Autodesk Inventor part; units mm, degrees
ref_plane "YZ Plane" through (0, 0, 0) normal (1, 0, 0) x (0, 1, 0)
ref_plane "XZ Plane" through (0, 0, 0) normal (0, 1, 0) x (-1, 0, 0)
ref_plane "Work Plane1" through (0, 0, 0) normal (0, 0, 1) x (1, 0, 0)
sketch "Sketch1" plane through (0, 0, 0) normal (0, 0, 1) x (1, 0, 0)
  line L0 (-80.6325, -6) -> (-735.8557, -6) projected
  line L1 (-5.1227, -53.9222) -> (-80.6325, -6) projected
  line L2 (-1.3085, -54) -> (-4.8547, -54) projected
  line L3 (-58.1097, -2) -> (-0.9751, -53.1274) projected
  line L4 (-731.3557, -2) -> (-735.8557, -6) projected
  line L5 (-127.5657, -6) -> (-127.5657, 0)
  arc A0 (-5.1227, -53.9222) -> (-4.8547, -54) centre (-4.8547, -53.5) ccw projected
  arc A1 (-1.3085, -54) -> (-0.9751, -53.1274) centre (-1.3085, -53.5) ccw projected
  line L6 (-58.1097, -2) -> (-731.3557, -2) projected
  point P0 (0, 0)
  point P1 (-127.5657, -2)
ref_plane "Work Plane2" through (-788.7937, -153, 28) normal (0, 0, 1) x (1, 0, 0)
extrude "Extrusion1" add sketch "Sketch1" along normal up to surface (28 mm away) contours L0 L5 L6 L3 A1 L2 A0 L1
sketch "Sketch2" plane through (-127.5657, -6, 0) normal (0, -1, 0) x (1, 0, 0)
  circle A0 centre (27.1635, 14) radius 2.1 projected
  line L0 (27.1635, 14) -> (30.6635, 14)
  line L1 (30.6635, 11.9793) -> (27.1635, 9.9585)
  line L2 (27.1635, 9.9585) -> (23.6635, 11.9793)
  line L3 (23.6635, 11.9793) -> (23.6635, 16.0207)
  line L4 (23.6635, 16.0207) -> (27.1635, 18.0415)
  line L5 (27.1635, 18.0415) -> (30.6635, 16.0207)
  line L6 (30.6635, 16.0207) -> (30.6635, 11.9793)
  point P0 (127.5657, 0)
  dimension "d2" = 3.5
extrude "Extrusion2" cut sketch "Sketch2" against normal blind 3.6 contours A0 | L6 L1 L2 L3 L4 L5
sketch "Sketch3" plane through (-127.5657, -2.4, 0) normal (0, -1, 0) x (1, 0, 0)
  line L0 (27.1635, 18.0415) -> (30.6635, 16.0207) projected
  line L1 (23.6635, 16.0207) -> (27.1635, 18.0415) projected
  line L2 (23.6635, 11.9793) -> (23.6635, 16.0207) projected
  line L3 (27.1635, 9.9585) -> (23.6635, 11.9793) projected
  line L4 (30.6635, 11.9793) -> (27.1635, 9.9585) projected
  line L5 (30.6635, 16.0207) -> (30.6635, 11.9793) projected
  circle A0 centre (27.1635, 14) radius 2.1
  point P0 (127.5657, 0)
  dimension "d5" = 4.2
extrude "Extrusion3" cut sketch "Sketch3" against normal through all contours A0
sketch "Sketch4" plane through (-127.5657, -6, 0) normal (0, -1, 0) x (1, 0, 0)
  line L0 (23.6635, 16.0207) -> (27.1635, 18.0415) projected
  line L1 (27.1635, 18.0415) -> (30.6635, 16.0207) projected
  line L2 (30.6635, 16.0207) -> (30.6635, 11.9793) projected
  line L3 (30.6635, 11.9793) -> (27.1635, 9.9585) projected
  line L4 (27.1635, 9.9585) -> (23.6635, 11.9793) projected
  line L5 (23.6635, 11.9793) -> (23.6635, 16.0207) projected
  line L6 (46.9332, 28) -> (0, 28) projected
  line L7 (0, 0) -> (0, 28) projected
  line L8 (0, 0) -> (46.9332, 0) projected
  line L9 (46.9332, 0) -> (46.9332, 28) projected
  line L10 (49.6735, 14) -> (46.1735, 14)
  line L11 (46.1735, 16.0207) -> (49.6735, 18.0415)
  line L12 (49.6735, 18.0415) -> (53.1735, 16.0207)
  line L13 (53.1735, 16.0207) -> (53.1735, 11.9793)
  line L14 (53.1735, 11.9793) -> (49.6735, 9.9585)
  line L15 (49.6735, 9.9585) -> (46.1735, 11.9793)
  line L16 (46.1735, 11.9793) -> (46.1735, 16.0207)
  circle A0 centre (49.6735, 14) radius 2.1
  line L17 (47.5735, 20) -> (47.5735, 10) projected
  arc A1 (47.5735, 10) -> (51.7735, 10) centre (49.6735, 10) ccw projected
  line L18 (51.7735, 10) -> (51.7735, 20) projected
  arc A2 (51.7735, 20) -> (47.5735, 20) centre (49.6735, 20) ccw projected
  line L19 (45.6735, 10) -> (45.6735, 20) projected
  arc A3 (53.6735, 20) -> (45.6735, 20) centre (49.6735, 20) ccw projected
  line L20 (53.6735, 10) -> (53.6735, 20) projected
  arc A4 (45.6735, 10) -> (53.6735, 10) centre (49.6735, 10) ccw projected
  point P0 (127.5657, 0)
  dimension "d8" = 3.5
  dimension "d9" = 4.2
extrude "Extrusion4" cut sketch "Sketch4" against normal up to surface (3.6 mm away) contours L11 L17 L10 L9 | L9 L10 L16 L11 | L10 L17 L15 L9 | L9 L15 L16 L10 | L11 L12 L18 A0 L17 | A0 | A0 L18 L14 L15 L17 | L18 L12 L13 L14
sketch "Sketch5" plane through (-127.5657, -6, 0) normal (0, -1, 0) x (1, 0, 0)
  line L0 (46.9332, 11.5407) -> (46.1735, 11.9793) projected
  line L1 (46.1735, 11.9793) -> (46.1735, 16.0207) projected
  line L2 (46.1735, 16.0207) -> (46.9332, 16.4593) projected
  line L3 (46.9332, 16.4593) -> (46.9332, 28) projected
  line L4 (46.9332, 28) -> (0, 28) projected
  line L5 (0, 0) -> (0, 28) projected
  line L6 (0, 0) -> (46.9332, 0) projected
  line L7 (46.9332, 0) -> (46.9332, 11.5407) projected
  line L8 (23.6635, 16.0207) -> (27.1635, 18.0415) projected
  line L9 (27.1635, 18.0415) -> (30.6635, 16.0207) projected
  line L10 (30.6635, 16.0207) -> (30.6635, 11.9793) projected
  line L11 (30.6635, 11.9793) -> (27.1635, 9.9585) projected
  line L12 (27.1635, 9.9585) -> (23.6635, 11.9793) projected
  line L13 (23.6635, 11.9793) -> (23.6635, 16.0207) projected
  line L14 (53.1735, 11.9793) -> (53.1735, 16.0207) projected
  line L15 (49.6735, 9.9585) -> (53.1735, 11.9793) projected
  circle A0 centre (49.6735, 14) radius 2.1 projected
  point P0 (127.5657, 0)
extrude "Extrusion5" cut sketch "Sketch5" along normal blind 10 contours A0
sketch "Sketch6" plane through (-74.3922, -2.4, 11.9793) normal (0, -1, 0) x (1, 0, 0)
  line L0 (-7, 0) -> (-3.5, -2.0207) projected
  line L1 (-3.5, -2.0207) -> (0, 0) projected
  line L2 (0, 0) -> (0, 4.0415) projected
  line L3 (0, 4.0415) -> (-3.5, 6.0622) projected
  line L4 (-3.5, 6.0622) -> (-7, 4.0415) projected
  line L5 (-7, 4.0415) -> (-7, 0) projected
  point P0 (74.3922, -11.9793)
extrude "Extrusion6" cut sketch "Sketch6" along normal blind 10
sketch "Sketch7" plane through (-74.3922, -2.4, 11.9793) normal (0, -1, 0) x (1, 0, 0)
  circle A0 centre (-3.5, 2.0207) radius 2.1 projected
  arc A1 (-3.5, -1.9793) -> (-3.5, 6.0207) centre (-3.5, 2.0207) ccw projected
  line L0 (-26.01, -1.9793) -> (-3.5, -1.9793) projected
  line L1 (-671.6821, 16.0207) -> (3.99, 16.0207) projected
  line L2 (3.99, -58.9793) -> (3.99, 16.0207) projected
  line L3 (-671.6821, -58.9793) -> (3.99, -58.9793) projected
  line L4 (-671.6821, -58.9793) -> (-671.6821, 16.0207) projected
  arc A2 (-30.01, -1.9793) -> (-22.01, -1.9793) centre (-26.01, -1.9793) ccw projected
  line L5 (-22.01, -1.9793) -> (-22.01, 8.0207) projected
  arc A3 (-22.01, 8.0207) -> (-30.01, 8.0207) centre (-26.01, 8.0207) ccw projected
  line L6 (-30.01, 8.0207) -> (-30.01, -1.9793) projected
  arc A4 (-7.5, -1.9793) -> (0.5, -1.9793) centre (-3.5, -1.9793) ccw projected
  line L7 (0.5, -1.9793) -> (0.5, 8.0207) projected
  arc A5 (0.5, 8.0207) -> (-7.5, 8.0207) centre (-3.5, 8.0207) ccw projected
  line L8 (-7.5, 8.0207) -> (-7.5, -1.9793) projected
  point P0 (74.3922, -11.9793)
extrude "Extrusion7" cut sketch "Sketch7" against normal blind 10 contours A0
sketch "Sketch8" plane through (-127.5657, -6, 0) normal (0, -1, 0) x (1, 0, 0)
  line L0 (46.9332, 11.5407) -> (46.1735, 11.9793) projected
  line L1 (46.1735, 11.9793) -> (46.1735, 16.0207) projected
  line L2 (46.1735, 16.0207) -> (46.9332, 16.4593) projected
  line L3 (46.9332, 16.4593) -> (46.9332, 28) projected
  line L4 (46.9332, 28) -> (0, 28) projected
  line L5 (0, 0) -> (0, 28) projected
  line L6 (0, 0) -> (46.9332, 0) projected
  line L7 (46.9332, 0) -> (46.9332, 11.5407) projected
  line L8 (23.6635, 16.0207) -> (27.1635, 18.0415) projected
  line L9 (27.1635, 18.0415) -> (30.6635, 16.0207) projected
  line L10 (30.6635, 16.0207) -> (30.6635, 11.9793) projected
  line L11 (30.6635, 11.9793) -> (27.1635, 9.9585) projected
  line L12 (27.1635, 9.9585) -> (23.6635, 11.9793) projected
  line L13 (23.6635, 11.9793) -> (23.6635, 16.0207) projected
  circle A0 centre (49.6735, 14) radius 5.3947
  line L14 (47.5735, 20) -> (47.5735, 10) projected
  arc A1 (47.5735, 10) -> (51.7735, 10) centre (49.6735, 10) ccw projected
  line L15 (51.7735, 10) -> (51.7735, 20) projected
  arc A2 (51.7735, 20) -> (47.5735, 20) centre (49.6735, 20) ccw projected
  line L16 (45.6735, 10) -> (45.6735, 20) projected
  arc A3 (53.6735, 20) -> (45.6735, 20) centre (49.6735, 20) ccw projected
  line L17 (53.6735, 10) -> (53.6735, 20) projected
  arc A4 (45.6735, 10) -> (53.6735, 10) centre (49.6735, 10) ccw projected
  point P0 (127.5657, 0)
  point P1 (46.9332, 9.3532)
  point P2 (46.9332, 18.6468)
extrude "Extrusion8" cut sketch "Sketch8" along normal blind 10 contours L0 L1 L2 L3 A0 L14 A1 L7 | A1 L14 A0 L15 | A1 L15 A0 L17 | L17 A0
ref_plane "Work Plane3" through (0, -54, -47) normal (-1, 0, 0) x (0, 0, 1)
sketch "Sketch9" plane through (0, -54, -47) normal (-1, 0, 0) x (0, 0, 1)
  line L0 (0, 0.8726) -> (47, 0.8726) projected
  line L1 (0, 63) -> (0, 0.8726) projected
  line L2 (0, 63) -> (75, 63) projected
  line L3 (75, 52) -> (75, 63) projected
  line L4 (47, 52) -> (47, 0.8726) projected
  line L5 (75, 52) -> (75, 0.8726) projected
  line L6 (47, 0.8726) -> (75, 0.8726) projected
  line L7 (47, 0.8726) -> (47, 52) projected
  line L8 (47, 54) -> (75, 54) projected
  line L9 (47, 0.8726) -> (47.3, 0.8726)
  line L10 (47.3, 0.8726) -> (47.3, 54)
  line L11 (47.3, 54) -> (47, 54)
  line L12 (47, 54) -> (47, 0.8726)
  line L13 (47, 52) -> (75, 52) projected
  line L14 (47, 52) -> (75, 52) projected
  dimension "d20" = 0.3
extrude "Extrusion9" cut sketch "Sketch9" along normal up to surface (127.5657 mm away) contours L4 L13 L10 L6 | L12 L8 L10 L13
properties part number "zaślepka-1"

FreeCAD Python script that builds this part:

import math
import FreeCAD as App
import Part
import Sketcher
from FreeCAD import Vector
Q = App.Units.Quantity


def add_polygon(sketch, points):
    """Adds a closed chain of lines whose ends are joined by coincident constraints."""
    first, n = sketch.GeometryCount, len(points)
    for a, b in zip(points, points[1:] + points[:1]):
        sketch.addGeometry(Part.LineSegment(App.Vector(*a, 0), App.Vector(*b, 0)), False)
    for i in range(n):
        sketch.addConstraint(Sketcher.Constraint("Coincident", first + i, 2, first + (i + 1) % n, 1))

doc = App.newDocument("Part")
body = doc.addObject("PartDesign::Body", "Body")

# Sketch on XY plane
sketch1 = doc.addObject("Sketcher::SketchObject", "Sketch")
body.addObject(sketch1)
sketch1.AttachmentSupport = (doc.XY_Plane, [""])
sketch1.MapMode = "FlatFace"
sketch1.addGeometry(Part.LineSegment(Vector(-127.57, -6, 0), Vector(-80.63, -6, 0)), False)
sketch1.addGeometry(Part.LineSegment(Vector(-80.63, -6, 0), Vector(-5.12, -53.92, 0)), False)
sketch1.addGeometry(Part.ArcOfCircle(Part.Circle(Vector(-4.85, -53.5, 0), Vector(0, 0, 1), 0.5), math.radians(-122), math.radians(-90)), False)
sketch1.addGeometry(Part.LineSegment(Vector(-4.85, -54, 0), Vector(-1.31, -54, 0)), False)
sketch1.addGeometry(Part.ArcOfCircle(Part.Circle(Vector(-1.31, -53.5, 0), Vector(0, 0, 1), 0.5), math.radians(-90), math.radians(48)), False)
sketch1.addGeometry(Part.LineSegment(Vector(-0.98, -53.13, 0), Vector(-58.11, -2, 0)), False)
sketch1.addGeometry(Part.LineSegment(Vector(-58.11, -2, 0), Vector(-127.57, -2, 0)), False)
sketch1.addGeometry(Part.LineSegment(Vector(-127.57, -2, 0), Vector(-127.57, -6, 0)), False)
sketch1.addConstraint(Sketcher.Constraint("Coincident", 0, 2, 1, 1))
sketch1.addConstraint(Sketcher.Constraint("Tangent", 1, 2, 2, 1))
sketch1.addConstraint(Sketcher.Constraint("Tangent", 2, 2, 3, 1))
sketch1.addConstraint(Sketcher.Constraint("Tangent", 3, 2, 4, 1))
sketch1.addConstraint(Sketcher.Constraint("Tangent", 4, 2, 5, 1))
sketch1.addConstraint(Sketcher.Constraint("Coincident", 5, 2, 6, 1))
sketch1.addConstraint(Sketcher.Constraint("Coincident", 6, 2, 7, 1))
sketch1.addConstraint(Sketcher.Constraint("Coincident", 7, 2, 0, 1))
sketch1.addConstraint(Sketcher.Constraint("Horizontal", 0))
sketch1.addConstraint(Sketcher.Constraint("Horizontal", 3))
sketch1.addConstraint(Sketcher.Constraint("Horizontal", 6))
sketch1.addConstraint(Sketcher.Constraint("Vertical", 7))
sketch1.addConstraint(Sketcher.Constraint("Equal", 2, 4))
sketch1.addConstraint(Sketcher.Constraint("Radius", 2, Q("0.5 mm")))
sketch1.addConstraint(Sketcher.Constraint("DistanceY", 7, 2, 7, 1, Q("4 mm")))
sketch1.addConstraint(Sketcher.Constraint("DistanceY", 0, 2, -1, 1, Q("6 mm")))
sketch1.addConstraint(Sketcher.Constraint("DistanceY", 2, 2, -1, 1, Q("54 mm")))
sketch1.addConstraint(Sketcher.Constraint("DistanceX", 6, 2, 6, 1, Q("69.456 mm")))
sketch1.addConstraint(Sketcher.Constraint("Distance", 1, Q("89.433 mm")))
sketch1.addConstraint(Sketcher.Constraint("DistanceX", 0, 1, 0, 2, Q("46.9332 mm")))
sketch1.addConstraint(Sketcher.Constraint("DistanceX", 3, 1, 3, 2, Q("3.5462 mm")))
sketch1.addConstraint(Sketcher.Constraint("DistanceX", 4, 2, -1, 1, Q("0.975 mm")))
pad1 = doc.addObject("PartDesign::Pad", "Pad")
body.addObject(pad1)
pad1.Profile = sketch1
pad1.Length = 28

# Sketch on XZ plane
sketch2 = doc.addObject("Sketcher::SketchObject", "Sketch001")
body.addObject(sketch2)
sketch2.AttachmentSupport = (doc.XZ_Plane, [""])
sketch2.MapMode = "FlatFace"
sketch2.AttachmentOffset = App.Placement(Vector(0, 0, 6), App.Rotation())
add_polygon(sketch2, [(-96.9, 12), (-96.9, 14), (-96.9, 16), (-100.4, 18), (-103.9, 16), (-103.9, 12), (-100.4, 10)])  # lines 0-6
sketch2.addConstraint(Sketcher.Constraint("Vertical", 0))
sketch2.addConstraint(Sketcher.Constraint("Vertical", 1))
sketch2.addConstraint(Sketcher.Constraint("Vertical", 4))
sketch2.addConstraint(Sketcher.Constraint("Parallel", 2, 5))
sketch2.addConstraint(Sketcher.Constraint("Parallel", 3, 6))
sketch2.addConstraint(Sketcher.Constraint("Horizontal", 1, 2, 3, 2))
sketch2.addConstraint(Sketcher.Constraint("Horizontal", 4, 2, 6, 2))
sketch2.addConstraint(Sketcher.Constraint("Vertical", 2, 2, 5, 2))
sketch2.addConstraint(Sketcher.Constraint("Equal", 0, 1))
sketch2.addConstraint(Sketcher.Constraint("DistanceX", 2, 2, 1, 2, Q("3.5 mm")))
sketch2.addConstraint(Sketcher.Constraint("Angle", 2, Q("149.999 deg")))
sketch2.addConstraint(Sketcher.Constraint("DistanceY", -1, 1, 0, 2, Q("14 mm")))
sketch2.addConstraint(Sketcher.Constraint("DistanceY", 0, 1, 0, 2, Q("2.0207 mm")))
sketch2.addConstraint(Sketcher.Constraint("DistanceX", 0, 2, -1, 1, Q("96.9022 mm")))
pocket1 = doc.addObject("PartDesign::Pocket", "Pocket")
body.addObject(pocket1)
pocket1.Profile = sketch2
pocket1.Length = 3.6

# Sketch on XZ plane
sketch3 = doc.addObject("Sketcher::SketchObject", "Sketch002")
body.addObject(sketch3)
sketch3.AttachmentSupport = (doc.XZ_Plane, [""])
sketch3.MapMode = "FlatFace"
sketch3.AttachmentOffset = App.Placement(Vector(0, 0, 2.4), App.Rotation())
sketch3.addGeometry(Part.Circle(Vector(-100.4, 14, 0), Vector(0, 0, 1), 2.1), False)
sketch3.addConstraint(Sketcher.Constraint("Diameter", 0, Q("4.2 mm")))
sketch3.addConstraint(Sketcher.Constraint("DistanceY", -1, 1, 0, 3, Q("14 mm")))
sketch3.addConstraint(Sketcher.Constraint("DistanceX", 0, 3, -1, 1, Q("100.4022 mm")))
pocket2 = doc.addObject("PartDesign::Pocket", "Pocket001")
body.addObject(pocket2)
pocket2.Profile = sketch3
pocket2.Type = "ThroughAll"

# Sketch on XZ plane
sketch4 = doc.addObject("Sketcher::SketchObject", "Sketch003")
body.addObject(sketch4)
sketch4.AttachmentSupport = (doc.XZ_Plane, [""])
sketch4.MapMode = "FlatFace"
sketch4.AttachmentOffset = App.Placement(Vector(0, 0, 6), App.Rotation())
add_polygon(sketch4, [(-81.4, 16), (-81.4, 12), (-77.9, 10), (-74.4, 12), (-74.4, 16), (-77.9, 18)])  # lines 0-5
sketch4.addConstraint(Sketcher.Constraint("Vertical", 0))
sketch4.addConstraint(Sketcher.Constraint("Vertical", 3))
sketch4.addConstraint(Sketcher.Constraint("Parallel", 1, 4))
sketch4.addConstraint(Sketcher.Constraint("Parallel", 2, 5))
sketch4.addConstraint(Sketcher.Constraint("Horizontal", 0, 2, 2, 2))
sketch4.addConstraint(Sketcher.Constraint("Horizontal", 3, 2, 5, 2))
sketch4.addConstraint(Sketcher.Constraint("Vertical", 1, 2, 4, 2))
sketch4.addConstraint(Sketcher.Constraint("DistanceX", 0, 2, 1, 2, Q("3.5 mm")))
sketch4.addConstraint(Sketcher.Constraint("Angle", 1, Q("-30.001 deg")))
sketch4.addConstraint(Sketcher.Constraint("DistanceY", 0, 2, 0, 1, Q("4.0414 mm")))
sketch4.addConstraint(Sketcher.Constraint("DistanceX", 0, 2, -1, 1, Q("81.3922 mm")))
sketch4.addConstraint(Sketcher.Constraint("DistanceY", -1, 1, 0, 2, Q("11.9793 mm")))
pocket3 = doc.addObject("PartDesign::Pocket", "Pocket002")
body.addObject(pocket3)
pocket3.Profile = sketch4
pocket3.Length = 3.6

# Sketch on XZ plane
sketch5 = doc.addObject("Sketcher::SketchObject", "Sketch004")
body.addObject(sketch5)
sketch5.AttachmentSupport = (doc.XZ_Plane, [""])
sketch5.MapMode = "FlatFace"
sketch5.AttachmentOffset = App.Placement(Vector(0, 0, 6), App.Rotation())
sketch5.addGeometry(Part.Circle(Vector(-77.9, 14, 0), Vector(0, 0, 1), 2.1), False)
sketch5.addConstraint(Sketcher.Constraint("Diameter", 0, Q("4.2 mm")))
sketch5.addConstraint(Sketcher.Constraint("DistanceY", -1, 1, 0, 3, Q("14 mm")))
sketch5.addConstraint(Sketcher.Constraint("DistanceX", 0, 3, -1, 1, Q("77.8922 mm")))
pocket4 = doc.addObject("PartDesign::Pocket", "Pocket003")
body.addObject(pocket4)
pocket4.Profile = sketch5
pocket4.Length = 10
pocket4.Reversed = True

# Sketch on XZ plane
sketch6 = doc.addObject("Sketcher::SketchObject", "Sketch005")
body.addObject(sketch6)
sketch6.AttachmentSupport = (doc.XZ_Plane, [""])
sketch6.MapMode = "FlatFace"
sketch6.AttachmentOffset = App.Placement(Vector(0, 0, 2.4), App.Rotation())
add_polygon(sketch6, [(-81.4, 16), (-81.4, 12), (-77.9, 10), (-74.4, 12), (-74.4, 16), (-77.9, 18)])  # lines 0-5
sketch6.addConstraint(Sketcher.Constraint("Vertical", 0))
sketch6.addConstraint(Sketcher.Constraint("Vertical", 3))
sketch6.addConstraint(Sketcher.Constraint("Parallel", 1, 4))
sketch6.addConstraint(Sketcher.Constraint("Parallel", 2, 5))
sketch6.addConstraint(Sketcher.Constraint("Horizontal", 0, 2, 2, 2))
sketch6.addConstraint(Sketcher.Constraint("Horizontal", 3, 2, 5, 2))
sketch6.addConstraint(Sketcher.Constraint("Vertical", 1, 2, 4, 2))
sketch6.addConstraint(Sketcher.Constraint("Angle", 1, Q("-29.9997 deg")))
sketch6.addConstraint(Sketcher.Constraint("DistanceX", 0, 2, 2, 2, Q("7 mm")))
sketch6.addConstraint(Sketcher.Constraint("DistanceY", 0, 2, 0, 1, Q("4.0415 mm")))
sketch6.addConstraint(Sketcher.Constraint("DistanceX", 0, 2, -1, 1, Q("81.3922 mm")))
sketch6.addConstraint(Sketcher.Constraint("DistanceY", -1, 1, 0, 2, Q("11.9793 mm")))
pocket5 = doc.addObject("PartDesign::Pocket", "Pocket004")
body.addObject(pocket5)
pocket5.Profile = sketch6
pocket5.Length = 10
pocket5.Reversed = True

# Sketch on XZ plane
sketch7 = doc.addObject("Sketcher::SketchObject", "Sketch006")
body.addObject(sketch7)
sketch7.AttachmentSupport = (doc.XZ_Plane, [""])
sketch7.MapMode = "FlatFace"
sketch7.AttachmentOffset = App.Placement(Vector(0, 0, 2.4), App.Rotation())
sketch7.addGeometry(Part.Circle(Vector(-77.9, 14, 0), Vector(0, 0, 1), 2.1), False)
sketch7.addConstraint(Sketcher.Constraint("Diameter", 0, Q("4.2 mm")))
sketch7.addConstraint(Sketcher.Constraint("DistanceY", -1, 1, 0, 3, Q("14 mm")))
sketch7.addConstraint(Sketcher.Constraint("DistanceX", 0, 3, -1, 1, Q("77.8922 mm")))
pocket6 = doc.addObject("PartDesign::Pocket", "Pocket005")
body.addObject(pocket6)
pocket6.Profile = sketch7
pocket6.Length = 10

# Sketch on XZ plane
sketch8 = doc.addObject("Sketcher::SketchObject", "Sketch007")
body.addObject(sketch8)
sketch8.AttachmentSupport = (doc.XZ_Plane, [""])
sketch8.MapMode = "FlatFace"
sketch8.AttachmentOffset = App.Placement(Vector(0, 0, 6), App.Rotation())
sketch8.addGeometry(Part.LineSegment(Vector(-81.4, 12, 0), Vector(-80.6, 11.5, 0)), False)
sketch8.addGeometry(Part.LineSegment(Vector(-80.6, 11.5, 0), Vector(-80.6, 9.4, 0)), False)
sketch8.addGeometry(Part.ArcOfCircle(Part.Circle(Vector(-77.9, 14, 0), Vector(0, 0, 1), 5.4), math.radians(-121), math.radians(121)), False)
sketch8.addGeometry(Part.LineSegment(Vector(-80.6, 18.6, 0), Vector(-80.6, 16.5, 0)), False)
sketch8.addGeometry(Part.LineSegment(Vector(-80.6, 16.5, 0), Vector(-81.4, 16, 0)), False)
sketch8.addGeometry(Part.LineSegment(Vector(-81.4, 16, 0), Vector(-81.4, 12, 0)), False)
sketch8.addConstraint(Sketcher.Constraint("Coincident", 0, 2, 1, 1))
sketch8.addConstraint(Sketcher.Constraint("Coincident", 1, 2, 2, 1))
sketch8.addConstraint(Sketcher.Constraint("Coincident", 2, 2, 3, 1))
sketch8.addConstraint(Sketcher.Constraint("Coincident", 3, 2, 4, 1))
sketch8.addConstraint(Sketcher.Constraint("Coincident", 4, 2, 5, 1))
sketch8.addConstraint(Sketcher.Constraint("Coincident", 5, 2, 0, 1))
sketch8.addConstraint(Sketcher.Constraint("Vertical", 1))
sketch8.addConstraint(Sketcher.Constraint("Vertical", 3))
sketch8.addConstraint(Sketcher.Constraint("Vertical", 5))
sketch8.addConstraint(Sketcher.Constraint("Vertical", 1, 2, 2, 2))
sketch8.addConstraint(Sketcher.Constraint("Equal", 1, 3))
sketch8.addConstraint(Sketcher.Constraint("Equal", 0, 4))
sketch8.addConstraint(Sketcher.Constraint("Angle", 0, Q("-29.9993 deg")))
sketch8.addConstraint(Sketcher.Constraint("DistanceY", -1, 1, 2, 3, Q("14 mm")))
sketch8.addConstraint(Sketcher.Constraint("Radius", 2, Q("5.3947 mm")))
sketch8.addConstraint(Sketcher.Constraint("DistanceX", 4, 2, 2, 3, Q("3.5 mm")))
sketch8.addConstraint(Sketcher.Constraint("DistanceY", 0, 2, 4, 2, Q("4.48 mm")))
sketch8.addConstraint(Sketcher.Constraint("DistanceY", 1, 2, 1, 1, Q("2.1876 mm")))
sketch8.addConstraint(Sketcher.Constraint("DistanceX", 2, 3, -1, 1, Q("77.8922 mm")))
pocket7 = doc.addObject("PartDesign::Pocket", "Pocket006")
body.addObject(pocket7)
pocket7.Profile = sketch8
pocket7.Length = 10
pocket7.Reversed = True

# Sketch on YZ plane
sketch9 = doc.addObject("Sketcher::SketchObject", "Sketch008")
body.addObject(sketch9)
sketch9.AttachmentSupport = (doc.YZ_Plane, [""])
sketch9.MapMode = "FlatFace"
add_polygon(sketch9, [(-53.13, 0), (-53.13, 0.3), (0, 0.3), (0, 0)])  # lines 0-3
sketch9.addConstraint(Sketcher.Constraint("Vertical", 0))
sketch9.addConstraint(Sketcher.Constraint("Horizontal", 1))
sketch9.addConstraint(Sketcher.Constraint("Vertical", 2))
sketch9.addConstraint(Sketcher.Constraint("Horizontal", 3))
sketch9.addConstraint(Sketcher.Constraint("Coincident", 2, 2, -1, 1))
sketch9.addConstraint(Sketcher.Constraint("DistanceY", 0, 1, 0, 2, Q("0.3 mm")))
sketch9.addConstraint(Sketcher.Constraint("DistanceX", 1, 1, 1, 2, Q("53.1274 mm")))
pocket8 = doc.addObject("PartDesign::Pocket", "Pocket007")
body.addObject(pocket8)
pocket8.Profile = sketch9
pocket8.Length = 127.5657

doc.recompute()
